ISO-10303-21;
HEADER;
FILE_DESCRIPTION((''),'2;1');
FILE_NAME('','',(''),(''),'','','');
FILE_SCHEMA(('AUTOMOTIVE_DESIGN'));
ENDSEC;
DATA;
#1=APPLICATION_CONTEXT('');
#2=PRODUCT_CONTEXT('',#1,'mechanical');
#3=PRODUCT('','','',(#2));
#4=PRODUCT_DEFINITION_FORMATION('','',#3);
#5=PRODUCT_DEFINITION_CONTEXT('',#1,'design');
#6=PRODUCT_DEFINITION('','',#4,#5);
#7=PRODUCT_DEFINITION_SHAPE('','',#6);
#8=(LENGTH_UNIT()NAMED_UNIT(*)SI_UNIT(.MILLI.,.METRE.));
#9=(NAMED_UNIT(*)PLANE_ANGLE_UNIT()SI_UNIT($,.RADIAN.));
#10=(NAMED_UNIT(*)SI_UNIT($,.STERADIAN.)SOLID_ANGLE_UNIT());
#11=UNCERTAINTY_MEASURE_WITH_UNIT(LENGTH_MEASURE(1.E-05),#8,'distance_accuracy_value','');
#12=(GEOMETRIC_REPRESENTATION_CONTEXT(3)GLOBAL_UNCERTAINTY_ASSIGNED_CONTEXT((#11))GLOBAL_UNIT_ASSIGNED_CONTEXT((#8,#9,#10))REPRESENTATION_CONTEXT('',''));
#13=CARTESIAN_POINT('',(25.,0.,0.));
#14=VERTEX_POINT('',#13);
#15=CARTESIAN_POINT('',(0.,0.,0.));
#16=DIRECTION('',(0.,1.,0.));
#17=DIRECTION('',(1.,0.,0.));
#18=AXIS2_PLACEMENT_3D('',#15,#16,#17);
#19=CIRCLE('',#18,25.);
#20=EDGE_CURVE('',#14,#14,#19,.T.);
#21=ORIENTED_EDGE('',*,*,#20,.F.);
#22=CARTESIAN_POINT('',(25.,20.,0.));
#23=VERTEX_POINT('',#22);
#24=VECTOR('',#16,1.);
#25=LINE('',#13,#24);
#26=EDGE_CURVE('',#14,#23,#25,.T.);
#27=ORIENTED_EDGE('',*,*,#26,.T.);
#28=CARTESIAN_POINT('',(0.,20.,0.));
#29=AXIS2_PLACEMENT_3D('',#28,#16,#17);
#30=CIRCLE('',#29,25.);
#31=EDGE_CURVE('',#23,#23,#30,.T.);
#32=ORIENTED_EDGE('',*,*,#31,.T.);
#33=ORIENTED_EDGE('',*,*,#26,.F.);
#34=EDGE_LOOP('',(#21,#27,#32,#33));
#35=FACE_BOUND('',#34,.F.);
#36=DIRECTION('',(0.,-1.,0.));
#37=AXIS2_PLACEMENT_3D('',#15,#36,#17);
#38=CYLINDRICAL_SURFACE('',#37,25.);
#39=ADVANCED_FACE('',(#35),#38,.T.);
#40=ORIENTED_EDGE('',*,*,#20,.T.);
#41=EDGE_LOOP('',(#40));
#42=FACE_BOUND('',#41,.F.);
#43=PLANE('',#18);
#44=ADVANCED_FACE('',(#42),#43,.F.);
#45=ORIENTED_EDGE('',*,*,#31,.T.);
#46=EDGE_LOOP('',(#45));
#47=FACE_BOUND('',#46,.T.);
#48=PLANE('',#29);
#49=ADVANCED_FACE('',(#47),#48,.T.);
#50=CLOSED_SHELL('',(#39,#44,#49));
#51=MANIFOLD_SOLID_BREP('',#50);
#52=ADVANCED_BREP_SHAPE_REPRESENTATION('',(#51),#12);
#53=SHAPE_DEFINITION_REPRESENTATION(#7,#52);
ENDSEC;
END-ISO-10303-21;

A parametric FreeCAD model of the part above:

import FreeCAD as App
import Part
import Sketcher

V = App.Vector

doc = App.newDocument("Part")
body = doc.addObject("PartDesign::Body", "Body")

# Sketch on XZ plane
sketch1 = body.newObject("Sketcher::SketchObject", "Sketch")
sketch1.AttachmentSupport = (doc.getObject("XZ_Plane"), [""])
sketch1.MapMode = "FlatFace"
sketch1.addGeometry(Part.Circle(V(0, 0, 0), V(0, 0, 1), 25), False)
sketch1.addConstraint([
    Sketcher.Constraint("Coincident", 0, 3, -1, 1),
    Sketcher.Constraint("Diameter", 0, 50.0),
])
pad1 = body.newObject("PartDesign::Pad", "Pad")
pad1.Profile = sketch1
pad1.Length = 20
pad1.Reversed = True

doc.recompute()
